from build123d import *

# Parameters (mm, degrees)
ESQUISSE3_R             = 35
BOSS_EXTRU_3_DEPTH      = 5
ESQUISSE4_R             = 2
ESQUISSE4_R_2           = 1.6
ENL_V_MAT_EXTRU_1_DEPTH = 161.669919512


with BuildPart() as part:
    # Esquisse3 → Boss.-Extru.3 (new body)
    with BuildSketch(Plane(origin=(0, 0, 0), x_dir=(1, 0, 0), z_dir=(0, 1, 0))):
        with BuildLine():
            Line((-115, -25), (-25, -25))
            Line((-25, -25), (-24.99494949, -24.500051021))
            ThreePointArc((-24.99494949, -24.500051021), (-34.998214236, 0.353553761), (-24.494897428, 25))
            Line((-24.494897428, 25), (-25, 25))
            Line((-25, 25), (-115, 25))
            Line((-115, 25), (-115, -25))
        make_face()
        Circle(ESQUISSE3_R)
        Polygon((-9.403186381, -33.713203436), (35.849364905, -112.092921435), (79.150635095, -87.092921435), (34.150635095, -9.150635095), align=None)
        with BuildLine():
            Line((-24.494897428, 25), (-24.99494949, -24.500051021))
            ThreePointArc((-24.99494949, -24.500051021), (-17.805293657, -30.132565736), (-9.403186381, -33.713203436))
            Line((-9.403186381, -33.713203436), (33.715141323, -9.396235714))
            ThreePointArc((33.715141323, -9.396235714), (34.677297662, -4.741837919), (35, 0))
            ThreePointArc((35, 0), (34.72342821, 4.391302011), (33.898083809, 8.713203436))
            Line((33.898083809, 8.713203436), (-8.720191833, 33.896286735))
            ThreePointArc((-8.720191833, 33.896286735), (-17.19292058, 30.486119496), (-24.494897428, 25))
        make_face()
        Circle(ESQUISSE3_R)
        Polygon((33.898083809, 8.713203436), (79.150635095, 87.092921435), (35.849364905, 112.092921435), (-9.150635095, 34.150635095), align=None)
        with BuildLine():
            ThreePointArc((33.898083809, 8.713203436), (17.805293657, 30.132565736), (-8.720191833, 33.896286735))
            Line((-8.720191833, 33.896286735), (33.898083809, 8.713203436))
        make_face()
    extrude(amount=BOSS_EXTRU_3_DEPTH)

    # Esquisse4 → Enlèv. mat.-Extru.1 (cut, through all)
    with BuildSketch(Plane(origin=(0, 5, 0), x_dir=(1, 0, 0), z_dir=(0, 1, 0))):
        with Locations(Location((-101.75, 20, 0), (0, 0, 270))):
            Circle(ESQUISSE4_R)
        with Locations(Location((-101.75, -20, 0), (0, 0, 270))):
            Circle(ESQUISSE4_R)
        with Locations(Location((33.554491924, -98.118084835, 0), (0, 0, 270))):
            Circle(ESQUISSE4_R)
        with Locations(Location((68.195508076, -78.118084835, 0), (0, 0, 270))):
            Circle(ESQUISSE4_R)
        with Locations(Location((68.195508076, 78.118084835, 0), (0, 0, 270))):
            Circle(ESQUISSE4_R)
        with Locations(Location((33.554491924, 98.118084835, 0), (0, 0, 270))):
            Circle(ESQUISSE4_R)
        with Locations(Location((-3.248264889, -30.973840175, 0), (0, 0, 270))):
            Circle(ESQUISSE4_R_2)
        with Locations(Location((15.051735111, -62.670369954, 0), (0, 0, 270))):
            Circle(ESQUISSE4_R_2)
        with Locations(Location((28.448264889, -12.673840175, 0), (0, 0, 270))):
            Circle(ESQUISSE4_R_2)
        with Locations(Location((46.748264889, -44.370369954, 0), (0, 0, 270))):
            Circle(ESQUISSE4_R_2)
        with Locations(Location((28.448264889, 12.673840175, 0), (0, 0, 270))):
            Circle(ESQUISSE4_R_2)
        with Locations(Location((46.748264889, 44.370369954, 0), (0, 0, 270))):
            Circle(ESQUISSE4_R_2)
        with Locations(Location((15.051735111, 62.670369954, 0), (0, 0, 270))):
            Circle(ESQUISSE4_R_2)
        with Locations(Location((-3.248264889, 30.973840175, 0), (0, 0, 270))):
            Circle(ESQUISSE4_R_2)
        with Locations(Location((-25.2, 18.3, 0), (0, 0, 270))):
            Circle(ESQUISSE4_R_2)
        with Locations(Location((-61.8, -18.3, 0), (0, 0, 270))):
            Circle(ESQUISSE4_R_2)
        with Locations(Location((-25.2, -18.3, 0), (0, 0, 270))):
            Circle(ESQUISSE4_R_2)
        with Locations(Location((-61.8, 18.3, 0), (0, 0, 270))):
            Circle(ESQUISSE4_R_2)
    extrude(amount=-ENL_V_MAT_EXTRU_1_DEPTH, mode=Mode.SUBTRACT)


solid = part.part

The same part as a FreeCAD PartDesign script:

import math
import FreeCAD as App
import Part
import Sketcher

V = App.Vector
Q = App.Units.Quantity

doc = App.newDocument("Part")
body = doc.addObject("PartDesign::Body", "Body")

# Sketch on XZ plane
sketch1 = body.newObject("Sketcher::SketchObject", "Sketch")
sketch1.AttachmentSupport = (doc.getObject("XZ_Plane"), [""])
sketch1.MapMode = "FlatFace"
sketch1.addGeometry(Part.LineSegment(V(-115, -25, 0), V(-115, 25, 0)), False)
sketch1.addGeometry(Part.LineSegment(V(-115, 25, 0), V(-25, 25, 0)), False)
sketch1.addGeometry(Part.LineSegment(V(-25, 25, 0), V(-24.99, 24.5, 0)), False)
sketch1.addGeometry(Part.ArcOfCircle(Part.Circle(V(0, 0, 0), V(0, 0, 1), 35), math.radians(106), math.radians(136)), False)
sketch1.addGeometry(Part.LineSegment(V(-9.4, 33.71, 0), V(35.85, 112.09, 0)), False)
sketch1.addGeometry(Part.LineSegment(V(35.85, 112.09, 0), V(79.15, 87.09, 0)), False)
sketch1.addGeometry(Part.LineSegment(V(79.15, 87.09, 0), V(34.15, 9.15, 0)), False)
sketch1.addGeometry(Part.LineSegment(V(34.15, 9.15, 0), V(33.72, 9.4, 0)), False)
sketch1.addGeometry(Part.ArcOfCircle(Part.Circle(V(0, 0, 0), V(0, 0, 1), 35), math.radians(0), math.radians(15.57)), False)
sketch1.addGeometry(Part.ArcOfCircle(Part.Circle(V(0, 0, 0), V(0, 0, 1), 35), math.radians(-14.42), math.radians(0)), False)
sketch1.addGeometry(Part.LineSegment(V(33.9, -8.71, 0), V(79.15, -87.09, 0)), False)
sketch1.addGeometry(Part.LineSegment(V(79.15, -87.09, 0), V(35.85, -112.09, 0)), False)
sketch1.addGeometry(Part.LineSegment(V(35.85, -112.09, 0), V(-9.15, -34.15, 0)), False)
sketch1.addGeometry(Part.LineSegment(V(-9.15, -34.15, 0), V(-8.72, -33.9, 0)), False)
sketch1.addGeometry(Part.ArcOfCircle(Part.Circle(V(0, 0, 0), V(0, 0, 1), 35), math.radians(-134), math.radians(-104)), False)
sketch1.addGeometry(Part.LineSegment(V(-24.49, -25, 0), V(-115, -25, 0)), False)
sketch1.addConstraint(Sketcher.Constraint("Coincident", 0, 2, 1, 1))
sketch1.addConstraint(Sketcher.Constraint("Coincident", 1, 2, 2, 1))
sketch1.addConstraint(Sketcher.Constraint("Coincident", 2, 2, 3, 2))
sketch1.addConstraint(Sketcher.Constraint("Coincident", 3, 1, 4, 1))
sketch1.addConstraint(Sketcher.Constraint("Coincident", 4, 2, 5, 1))
sketch1.addConstraint(Sketcher.Constraint("Coincident", 5, 2, 6, 1))
sketch1.addConstraint(Sketcher.Constraint("Coincident", 6, 2, 7, 1))
sketch1.addConstraint(Sketcher.Constraint("Coincident", 7, 2, 8, 2))
sketch1.addConstraint(Sketcher.Constraint("Tangent", 8, 1, 9, 2))
sketch1.addConstraint(Sketcher.Constraint("Coincident", 9, 1, 10, 1))
sketch1.addConstraint(Sketcher.Constraint("Coincident", 10, 2, 11, 1))
sketch1.addConstraint(Sketcher.Constraint("Coincident", 11, 2, 12, 1))
sketch1.addConstraint(Sketcher.Constraint("Coincident", 12, 2, 13, 1))
sketch1.addConstraint(Sketcher.Constraint("Coincident", 13, 2, 14, 2))
sketch1.addConstraint(Sketcher.Constraint("Coincident", 14, 1, 15, 1))
sketch1.addConstraint(Sketcher.Constraint("Coincident", 15, 2, 0, 1))
sketch1.addConstraint(Sketcher.Constraint("Vertical", 0))
sketch1.addConstraint(Sketcher.Constraint("Horizontal", 1))
sketch1.addConstraint(Sketcher.Constraint("Horizontal", 15))
sketch1.addConstraint(Sketcher.Constraint("Coincident", 3, 3, -1, 1))
sketch1.addConstraint(Sketcher.Constraint("Coincident", 8, 3, -1, 1))
sketch1.addConstraint(Sketcher.Constraint("Coincident", 14, 3, -1, 1))
sketch1.addConstraint(Sketcher.Constraint("Equal", 3, 8))
sketch1.addConstraint(Sketcher.Constraint("Equal", 8, 9))
sketch1.addConstraint(Sketcher.Constraint("Equal", 9, 14))
sketch1.addConstraint(Sketcher.Constraint("Symmetric", 5, 2, 10, 2, -1))
sketch1.addConstraint(Sketcher.Constraint("Symmetric", 4, 2, 11, 2, -1))
sketch1.addConstraint(Sketcher.Constraint("PointOnObject", 8, 1, -1))
sketch1.addConstraint(Sketcher.Constraint("Perpendicular", 4, 5))
sketch1.addConstraint(Sketcher.Constraint("Perpendicular", 5, 6))
sketch1.addConstraint(Sketcher.Constraint("Perpendicular", 10, 11))
sketch1.addConstraint(Sketcher.Constraint("Perpendicular", 11, 12))
sketch1.addConstraint(Sketcher.Constraint("Equal", 2, 7))
sketch1.addConstraint(Sketcher.Constraint("Equal", 4, 10))
sketch1.addConstraint(Sketcher.Constraint("Equal", 6, 12))
sketch1.addConstraint(Sketcher.Constraint("Equal", 7, 13))
sketch1.addConstraint(Sketcher.Constraint("Radius", 3, 35.0))
sketch1.addConstraint(Sketcher.Constraint("DistanceX", 1, 1, 1, 2, 90.0))
sketch1.addConstraint(Sketcher.Constraint("DistanceY", 0, 1, 0, 2, 50.0))
sketch1.addConstraint(Sketcher.Constraint("Angle", 4, Q("60 deg")))
sketch1.addConstraint(Sketcher.Constraint("Distance", 5, 50.0))
sketch1.addConstraint(Sketcher.Constraint("Distance", 6, 90.0))
sketch1.addConstraint(Sketcher.Constraint("DistanceX", 0, 2, -1, 1, 115.0))
sketch1.addConstraint(Sketcher.Constraint("DistanceY", -1, 1, 0, 2, 25.0))
sketch1.addConstraint(Sketcher.Constraint("DistanceY", 6, 2, 7, 2, 0.245601))
sketch1.addConstraint(Sketcher.Constraint("DistanceX", 2, 2, -1, 1, 24.994949))
pad1 = body.newObject("PartDesign::Pad", "Pad")
pad1.Profile = sketch1
pad1.Length = 5
pad1.Reversed = True

# Sketch on XZ plane
sketch2 = body.newObject("Sketcher::SketchObject", "Sketch001")
sketch2.AttachmentSupport = (doc.getObject("XZ_Plane"), [""])
sketch2.MapMode = "FlatFace"
sketch2.AttachmentOffset = App.Placement(V(0, 0, -5), App.Rotation())
sketch2.addGeometry(Part.Circle(V(-101.8, -20, 0), V(0, 0, 1), 2), False)
sketch2.addGeometry(Part.Circle(V(-101.8, 20, 0), V(0, 0, 1), 2), False)
sketch2.addGeometry(Part.Circle(V(33.6, 98.1, 0), V(0, 0, 1), 2), False)
sketch2.addGeometry(Part.Circle(V(68.2, 78.1, 0), V(0, 0, 1), 2), False)
sketch2.addGeometry(Part.Circle(V(68.2, -78.1, 0), V(0, 0, 1), 2), False)
sketch2.addGeometry(Part.Circle(V(33.6, -98.1, 0), V(0, 0, 1), 2), False)
sketch2.addGeometry(Part.Circle(V(-3.2, 31, 0), V(0, 0, 1), 1.6), False)
sketch2.addGeometry(Part.Circle(V(15.1, 62.7, 0), V(0, 0, 1), 1.6), False)
sketch2.addGeometry(Part.Circle(V(28.4, 12.7, 0), V(0, 0, 1), 1.6), False)
sketch2.addGeometry(Part.Circle(V(46.7, 44.4, 0), V(0, 0, 1), 1.6), False)
sketch2.addGeometry(Part.Circle(V(28.4, -12.7, 0), V(0, 0, 1), 1.6), False)
sketch2.addGeometry(Part.Circle(V(46.7, -44.4, 0), V(0, 0, 1), 1.6), False)
sketch2.addGeometry(Part.Circle(V(15.1, -62.7, 0), V(0, 0, 1), 1.6), False)
sketch2.addGeometry(Part.Circle(V(-3.2, -31, 0), V(0, 0, 1), 1.6), False)
sketch2.addGeometry(Part.Circle(V(-25.2, -18.3, 0), V(0, 0, 1), 1.6), False)
sketch2.addGeometry(Part.Circle(V(-61.8, 18.3, 0), V(0, 0, 1), 1.6), False)
sketch2.addGeometry(Part.Circle(V(-25.2, 18.3, 0), V(0, 0, 1), 1.6), False)
sketch2.addGeometry(Part.Circle(V(-61.8, -18.3, 0), V(0, 0, 1), 1.6), False)
sketch2.addConstraint(Sketcher.Constraint("Equal", 0, 1))
sketch2.addConstraint(Sketcher.Constraint("Equal", 1, 2))
sketch2.addConstraint(Sketcher.Constraint("Equal", 2, 3))
sketch2.addConstraint(Sketcher.Constraint("Equal", 3, 4))
sketch2.addConstraint(Sketcher.Constraint("Equal", 4, 5))
sketch2.addConstraint(Sketcher.Constraint("Equal", 6, 7))
sketch2.addConstraint(Sketcher.Constraint("Equal", 7, 8))
sketch2.addConstraint(Sketcher.Constraint("Equal", 8, 9))
sketch2.addConstraint(Sketcher.Constraint("Equal", 9, 10))
sketch2.addConstraint(Sketcher.Constraint("Equal", 10, 11))
sketch2.addConstraint(Sketcher.Constraint("Equal", 11, 12))
sketch2.addConstraint(Sketcher.Constraint("Equal", 12, 13))
sketch2.addConstraint(Sketcher.Constraint("Equal", 13, 14))
sketch2.addConstraint(Sketcher.Constraint("Equal", 14, 15))
sketch2.addConstraint(Sketcher.Constraint("Equal", 15, 16))
sketch2.addConstraint(Sketcher.Constraint("Equal", 16, 17))
sketch2.addConstraint(Sketcher.Constraint("Symmetric", 0, 3, 1, 3, -1))
sketch2.addConstraint(Sketcher.Constraint("Symmetric", 3, 3, 4, 3, -1))
sketch2.addConstraint(Sketcher.Constraint("Symmetric", 2, 3, 5, 3, -1))
sketch2.addConstraint(Sketcher.Constraint("Symmetric", 8, 3, 10, 3, -1))
sketch2.addConstraint(Sketcher.Constraint("Symmetric", 9, 3, 11, 3, -1))
sketch2.addConstraint(Sketcher.Constraint("Symmetric", 7, 3, 12, 3, -1))
sketch2.addConstraint(Sketcher.Constraint("Symmetric", 6, 3, 13, 3, -1))
sketch2.addConstraint(Sketcher.Constraint("Symmetric", 14, 3, 16, 3, -1))
sketch2.addConstraint(Sketcher.Constraint("Symmetric", 15, 3, 17, 3, -1))
sketch2.addConstraint(Sketcher.Constraint("Horizontal", 15, 3, 16, 3))
sketch2.addConstraint(Sketcher.Constraint("Diameter", 0, 4.0))
sketch2.addConstraint(Sketcher.Constraint("Diameter", 6, 3.2))
sketch2.addConstraint(Sketcher.Constraint("DistanceY", 0, 3, -1, 1, 20.0))
sketch2.addConstraint(Sketcher.Constraint("DistanceY", 3, 3, 2, 3, 20.0))
sketch2.addConstraint(Sketcher.Constraint("DistanceX", 14, 3, -1, 1, 25.2))
sketch2.addConstraint(Sketcher.Constraint("DistanceY", 14, 3, -1, 1, 18.3))
sketch2.addConstraint(Sketcher.Constraint("DistanceX", 15, 3, -1, 1, 61.8))
sketch2.addConstraint(Sketcher.Constraint("DistanceX", 6, 3, 7, 3, 18.3))
sketch2.addConstraint(Sketcher.Constraint("DistanceY", 8, 3, 6, 3, 18.3))
sketch2.addConstraint(Sketcher.Constraint("DistanceY", 9, 3, 7, 3, 18.3))
sketch2.addConstraint(Sketcher.Constraint("DistanceX", 8, 3, 9, 3, 18.3))
sketch2.addConstraint(Sketcher.Constraint("DistanceX", 0, 3, -1, 1, 101.75))
sketch2.addConstraint(Sketcher.Constraint("DistanceX", -1, 1, 2, 3, 33.554492))
sketch2.addConstraint(Sketcher.Constraint("DistanceX", -1, 1, 3, 3, 68.195508))
sketch2.addConstraint(Sketcher.Constraint("DistanceY", -1, 1, 6, 3, 30.97384))
sketch2.addConstraint(Sketcher.Constraint("DistanceY", -1, 1, 7, 3, 62.67037))
sketch2.addConstraint(Sketcher.Constraint("DistanceY", 4, 3, 3, 3, 156.23617))
sketch2.addConstraint(Sketcher.Constraint("DistanceX", 6, 3, 8, 3, 31.69653))
sketch2.addConstraint(Sketcher.Constraint("DistanceX", 6, 3, -1, 1, 3.248265))
pocket1 = body.newObject("PartDesign::Pocket", "Pocket")
pocket1.Profile = sketch2
pocket1.Type = "ThroughAll"
pocket1.Reversed = True

doc.recompute()
